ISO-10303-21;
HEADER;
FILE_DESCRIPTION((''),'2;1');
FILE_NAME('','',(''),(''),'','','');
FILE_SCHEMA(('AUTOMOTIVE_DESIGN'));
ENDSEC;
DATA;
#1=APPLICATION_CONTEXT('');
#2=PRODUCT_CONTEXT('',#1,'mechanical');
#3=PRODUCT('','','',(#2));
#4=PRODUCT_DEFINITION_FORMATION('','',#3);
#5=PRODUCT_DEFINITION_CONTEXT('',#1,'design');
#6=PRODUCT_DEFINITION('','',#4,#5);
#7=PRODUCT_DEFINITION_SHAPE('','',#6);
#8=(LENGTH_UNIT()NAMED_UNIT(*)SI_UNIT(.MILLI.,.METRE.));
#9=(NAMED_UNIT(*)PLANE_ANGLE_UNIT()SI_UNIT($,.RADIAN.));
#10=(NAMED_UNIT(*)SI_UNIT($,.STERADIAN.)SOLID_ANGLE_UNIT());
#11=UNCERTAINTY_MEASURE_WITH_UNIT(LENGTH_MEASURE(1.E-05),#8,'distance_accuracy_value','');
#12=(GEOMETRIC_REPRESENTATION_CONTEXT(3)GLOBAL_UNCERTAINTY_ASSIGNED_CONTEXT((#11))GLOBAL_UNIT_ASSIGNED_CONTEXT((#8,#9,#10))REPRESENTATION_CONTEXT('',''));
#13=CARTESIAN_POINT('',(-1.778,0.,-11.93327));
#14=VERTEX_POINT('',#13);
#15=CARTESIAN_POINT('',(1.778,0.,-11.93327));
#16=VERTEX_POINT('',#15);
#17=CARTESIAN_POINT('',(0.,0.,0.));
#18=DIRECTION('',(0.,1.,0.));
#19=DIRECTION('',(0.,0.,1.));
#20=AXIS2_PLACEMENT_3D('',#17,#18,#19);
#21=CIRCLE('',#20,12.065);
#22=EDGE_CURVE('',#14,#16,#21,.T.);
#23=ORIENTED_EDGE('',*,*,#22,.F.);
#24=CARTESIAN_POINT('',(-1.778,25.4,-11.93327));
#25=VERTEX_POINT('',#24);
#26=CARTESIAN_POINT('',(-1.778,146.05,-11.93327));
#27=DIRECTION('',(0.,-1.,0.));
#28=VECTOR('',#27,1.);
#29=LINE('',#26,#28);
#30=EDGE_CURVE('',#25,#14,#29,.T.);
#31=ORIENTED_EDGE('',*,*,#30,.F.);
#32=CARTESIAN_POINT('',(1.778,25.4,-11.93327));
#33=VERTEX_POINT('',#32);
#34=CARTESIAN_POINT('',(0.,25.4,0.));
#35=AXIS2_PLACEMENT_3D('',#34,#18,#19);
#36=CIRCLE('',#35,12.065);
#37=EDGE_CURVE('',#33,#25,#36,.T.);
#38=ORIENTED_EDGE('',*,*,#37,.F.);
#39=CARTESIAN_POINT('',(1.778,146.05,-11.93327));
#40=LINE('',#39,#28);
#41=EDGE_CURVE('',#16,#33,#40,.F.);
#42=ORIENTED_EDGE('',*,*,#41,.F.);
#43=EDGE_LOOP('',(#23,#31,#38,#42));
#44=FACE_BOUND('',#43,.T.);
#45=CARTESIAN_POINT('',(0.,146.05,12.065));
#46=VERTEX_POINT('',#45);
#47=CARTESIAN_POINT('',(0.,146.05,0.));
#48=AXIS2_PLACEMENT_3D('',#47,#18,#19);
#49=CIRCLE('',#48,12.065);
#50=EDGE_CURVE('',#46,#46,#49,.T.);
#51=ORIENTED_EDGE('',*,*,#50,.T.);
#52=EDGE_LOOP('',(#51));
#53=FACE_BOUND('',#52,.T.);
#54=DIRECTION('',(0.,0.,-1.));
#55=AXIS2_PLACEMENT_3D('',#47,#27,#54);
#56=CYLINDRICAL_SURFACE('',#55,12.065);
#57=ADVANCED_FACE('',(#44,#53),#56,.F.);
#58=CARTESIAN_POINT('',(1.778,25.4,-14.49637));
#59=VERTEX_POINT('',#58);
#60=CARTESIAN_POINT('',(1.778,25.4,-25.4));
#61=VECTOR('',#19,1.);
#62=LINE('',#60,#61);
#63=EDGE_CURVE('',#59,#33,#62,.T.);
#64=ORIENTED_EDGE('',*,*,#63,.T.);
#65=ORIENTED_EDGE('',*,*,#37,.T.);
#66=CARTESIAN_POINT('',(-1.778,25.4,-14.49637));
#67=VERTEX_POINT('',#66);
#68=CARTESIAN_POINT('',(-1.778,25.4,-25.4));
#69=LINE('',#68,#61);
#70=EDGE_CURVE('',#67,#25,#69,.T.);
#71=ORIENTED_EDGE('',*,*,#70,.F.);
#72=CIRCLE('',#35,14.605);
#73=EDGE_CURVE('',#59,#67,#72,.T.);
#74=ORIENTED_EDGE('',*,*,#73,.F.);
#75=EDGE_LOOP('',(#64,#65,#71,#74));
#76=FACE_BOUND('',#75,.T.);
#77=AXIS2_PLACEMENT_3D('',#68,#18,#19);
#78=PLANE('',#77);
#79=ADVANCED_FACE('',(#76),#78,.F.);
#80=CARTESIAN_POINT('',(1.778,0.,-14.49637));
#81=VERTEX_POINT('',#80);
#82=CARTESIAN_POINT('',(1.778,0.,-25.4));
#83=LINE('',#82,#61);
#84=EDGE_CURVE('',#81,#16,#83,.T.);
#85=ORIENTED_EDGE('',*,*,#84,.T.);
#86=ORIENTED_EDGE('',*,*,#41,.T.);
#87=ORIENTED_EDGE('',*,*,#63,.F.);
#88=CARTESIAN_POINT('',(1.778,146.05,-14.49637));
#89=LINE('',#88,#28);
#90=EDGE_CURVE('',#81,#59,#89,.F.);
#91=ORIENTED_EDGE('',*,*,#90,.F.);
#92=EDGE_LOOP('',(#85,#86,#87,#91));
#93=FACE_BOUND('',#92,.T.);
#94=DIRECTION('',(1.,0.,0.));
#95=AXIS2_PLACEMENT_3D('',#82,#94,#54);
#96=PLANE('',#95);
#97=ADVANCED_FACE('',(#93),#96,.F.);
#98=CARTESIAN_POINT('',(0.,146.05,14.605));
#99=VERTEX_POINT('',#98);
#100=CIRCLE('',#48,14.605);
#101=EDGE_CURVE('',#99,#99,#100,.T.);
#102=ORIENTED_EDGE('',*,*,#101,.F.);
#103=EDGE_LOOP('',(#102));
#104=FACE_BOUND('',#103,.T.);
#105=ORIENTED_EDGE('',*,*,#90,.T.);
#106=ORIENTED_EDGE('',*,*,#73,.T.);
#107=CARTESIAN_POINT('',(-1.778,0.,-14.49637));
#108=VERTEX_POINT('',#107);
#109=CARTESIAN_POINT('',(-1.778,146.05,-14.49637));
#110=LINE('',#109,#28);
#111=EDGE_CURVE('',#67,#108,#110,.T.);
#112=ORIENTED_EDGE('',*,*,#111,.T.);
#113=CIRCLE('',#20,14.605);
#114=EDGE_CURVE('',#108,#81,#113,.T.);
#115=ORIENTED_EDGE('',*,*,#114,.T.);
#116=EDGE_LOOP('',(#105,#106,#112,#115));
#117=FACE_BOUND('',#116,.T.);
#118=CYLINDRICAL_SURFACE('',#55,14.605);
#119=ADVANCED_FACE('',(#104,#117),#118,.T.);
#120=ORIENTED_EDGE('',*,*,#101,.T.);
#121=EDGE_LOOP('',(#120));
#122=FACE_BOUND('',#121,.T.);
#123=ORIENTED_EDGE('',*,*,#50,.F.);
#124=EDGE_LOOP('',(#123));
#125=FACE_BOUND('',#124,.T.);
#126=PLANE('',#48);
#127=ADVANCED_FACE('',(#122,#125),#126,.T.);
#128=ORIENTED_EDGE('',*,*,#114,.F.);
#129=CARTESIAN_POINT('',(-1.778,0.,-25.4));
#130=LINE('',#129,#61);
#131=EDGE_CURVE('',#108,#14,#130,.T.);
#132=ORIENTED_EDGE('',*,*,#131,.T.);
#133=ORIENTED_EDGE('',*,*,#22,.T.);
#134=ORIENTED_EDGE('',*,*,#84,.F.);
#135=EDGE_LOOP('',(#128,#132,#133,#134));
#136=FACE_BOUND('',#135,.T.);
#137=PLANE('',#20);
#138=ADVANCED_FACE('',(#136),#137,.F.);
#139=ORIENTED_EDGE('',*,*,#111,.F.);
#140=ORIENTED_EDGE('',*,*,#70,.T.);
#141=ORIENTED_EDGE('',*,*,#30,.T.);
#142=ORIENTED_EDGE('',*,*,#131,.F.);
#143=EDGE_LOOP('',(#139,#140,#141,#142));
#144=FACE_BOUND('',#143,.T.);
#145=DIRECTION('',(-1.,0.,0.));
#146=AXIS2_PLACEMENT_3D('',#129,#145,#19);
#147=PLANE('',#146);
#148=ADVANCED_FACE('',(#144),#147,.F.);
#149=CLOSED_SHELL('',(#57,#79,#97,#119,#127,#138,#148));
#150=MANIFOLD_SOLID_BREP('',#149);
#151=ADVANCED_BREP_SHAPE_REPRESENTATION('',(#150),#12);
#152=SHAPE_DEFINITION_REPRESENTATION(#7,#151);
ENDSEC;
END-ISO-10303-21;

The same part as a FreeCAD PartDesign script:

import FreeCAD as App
import Part
import Sketcher
from FreeCAD import Vector
Q = App.Units.Quantity

doc = App.newDocument("Part")
body = doc.addObject("PartDesign::Body", "Body")

# Sketch on XZ plane
sketch1 = body.newObject("Sketcher::SketchObject", "Sketch")
sketch1.AttachmentSupport = (doc.getObject("XZ_Plane"), [""])
sketch1.MapMode = "FlatFace"
sketch1.addGeometry([
    Part.Circle(Vector(0, 0, 0), Vector(0, 0, 1), 15),
    Part.Circle(Vector(0, 0, 0), Vector(0, 0, 1), 12),
], False)
sketch1.addConstraint([
    Sketcher.Constraint("Coincident", 0, 3, -1, 1),
    Sketcher.Constraint("Coincident", 1, 3, -1, 1),
    Sketcher.Constraint("Diameter", 0, Q("1.15 in")),
    Sketcher.Constraint("Diameter", 1, Q("0.95 in")),
])
pad1 = body.newObject("PartDesign::Pad", "Pad")
pad1.Profile = sketch1
pad1.Length = Q("5.75 in")
pad1.Reversed = True

# Sketch on XY plane
sketch2 = body.newObject("Sketcher::SketchObject", "Sketch001")
sketch2.AttachmentSupport = (doc.getObject("XY_Plane"), [""])
sketch2.MapMode = "FlatFace"
sketch2.addGeometry([
    Part.LineSegment(Vector(-1.8, 25.4, 0), Vector(-1.8, 0, 0)),
    Part.LineSegment(Vector(-1.8, 0, 0), Vector(1.8, 0, 0)),
    Part.LineSegment(Vector(1.8, 0, 0), Vector(1.8, 25.4, 0)),
    Part.LineSegment(Vector(1.8, 25.4, 0), Vector(-1.8, 25.4, 0)),
], False)
sketch2.addConstraint([
    Sketcher.Constraint("Coincident", 0, 2, 1, 1),
    Sketcher.Constraint("Coincident", 1, 2, 2, 1),
    Sketcher.Constraint("Coincident", 2, 2, 3, 1),
    Sketcher.Constraint("Coincident", 3, 2, 0, 1),
    Sketcher.Constraint("Vertical", 0),
    Sketcher.Constraint("Horizontal", 1),
    Sketcher.Constraint("Vertical", 2),
    Sketcher.Constraint("Horizontal", 3),
    Sketcher.Constraint("Symmetric", 0, 2, 1, 2, -1, 1),
    Sketcher.Constraint("DistanceY", 0, 2, 0, 1, Q("1 in")),
    Sketcher.Constraint("DistanceX", 1, 1, 1, 2, Q("0.14 in")),
])
pocket1 = body.newObject("PartDesign::Pocket", "Pocket")
pocket1.Profile = sketch2
pocket1.Length = Q("1 in")

doc.recompute()
